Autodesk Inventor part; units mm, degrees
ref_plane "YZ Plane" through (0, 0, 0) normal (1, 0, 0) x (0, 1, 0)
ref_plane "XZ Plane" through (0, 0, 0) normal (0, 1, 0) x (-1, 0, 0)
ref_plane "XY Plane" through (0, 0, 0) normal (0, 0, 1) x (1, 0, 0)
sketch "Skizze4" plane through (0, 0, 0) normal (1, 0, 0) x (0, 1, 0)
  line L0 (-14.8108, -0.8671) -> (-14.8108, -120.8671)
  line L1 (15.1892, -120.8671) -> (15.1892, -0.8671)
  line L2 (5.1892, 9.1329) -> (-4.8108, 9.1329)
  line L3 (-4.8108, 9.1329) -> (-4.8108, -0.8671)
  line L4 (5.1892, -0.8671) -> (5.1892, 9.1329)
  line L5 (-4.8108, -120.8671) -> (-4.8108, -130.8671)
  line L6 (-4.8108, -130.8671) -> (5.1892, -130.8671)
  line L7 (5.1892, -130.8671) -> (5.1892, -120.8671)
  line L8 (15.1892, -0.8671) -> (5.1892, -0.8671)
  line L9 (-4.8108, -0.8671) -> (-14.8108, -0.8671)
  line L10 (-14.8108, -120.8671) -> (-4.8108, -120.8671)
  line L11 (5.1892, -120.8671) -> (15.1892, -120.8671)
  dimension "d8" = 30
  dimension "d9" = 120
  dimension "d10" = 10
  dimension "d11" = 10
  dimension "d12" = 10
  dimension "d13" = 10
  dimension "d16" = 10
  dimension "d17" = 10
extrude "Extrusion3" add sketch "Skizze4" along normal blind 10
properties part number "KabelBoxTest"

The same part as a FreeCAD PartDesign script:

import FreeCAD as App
import Part
import Sketcher
from FreeCAD import Vector
Q = App.Units.Quantity

doc = App.newDocument("Part")
body = doc.addObject("PartDesign::Body", "Body")

# Sketch on YZ plane
sketch1 = body.newObject("Sketcher::SketchObject", "Sketch")
sketch1.AttachmentSupport = (doc.getObject("YZ_Plane"), [""])
sketch1.MapMode = "FlatFace"
sketch1.addGeometry([
    Part.LineSegment(Vector(-5, -1, 0), Vector(-15, -1, 0)),  # 0
    Part.LineSegment(Vector(-15, -1, 0), Vector(-15, -121, 0)),  # 1
    Part.LineSegment(Vector(-15, -121, 0), Vector(-5, -121, 0)),  # 2
    Part.LineSegment(Vector(-5, -121, 0), Vector(-5, -131, 0)),  # 3
    Part.LineSegment(Vector(-5, -131, 0), Vector(5, -131, 0)),  # 4
    Part.LineSegment(Vector(5, -131, 0), Vector(5, -121, 0)),  # 5
    Part.LineSegment(Vector(5, -121, 0), Vector(15, -121, 0)),  # 6
    Part.LineSegment(Vector(15, -121, 0), Vector(15, -1, 0)),  # 7
    Part.LineSegment(Vector(15, -1, 0), Vector(5, -1, 0)),  # 8
    Part.LineSegment(Vector(5, -1, 0), Vector(5, 9, 0)),  # 9
    Part.LineSegment(Vector(5, 9, 0), Vector(-5, 9, 0)),  # 10
    Part.LineSegment(Vector(-5, 9, 0), Vector(-5, -1, 0)),  # 11
], False)
sketch1.addConstraint([
    Sketcher.Constraint("Coincident", 0, 2, 1, 1),
    Sketcher.Constraint("Coincident", 1, 2, 2, 1),
    Sketcher.Constraint("Coincident", 2, 2, 3, 1),
    Sketcher.Constraint("Coincident", 3, 2, 4, 1),
    Sketcher.Constraint("Coincident", 4, 2, 5, 1),
    Sketcher.Constraint("Coincident", 5, 2, 6, 1),
    Sketcher.Constraint("Coincident", 6, 2, 7, 1),
    Sketcher.Constraint("Coincident", 7, 2, 8, 1),
    Sketcher.Constraint("Coincident", 8, 2, 9, 1),
    Sketcher.Constraint("Coincident", 9, 2, 10, 1),
    Sketcher.Constraint("Coincident", 10, 2, 11, 1),
    Sketcher.Constraint("Coincident", 11, 2, 0, 1),
    Sketcher.Constraint("Horizontal", 0),
    Sketcher.Constraint("Vertical", 1),
    Sketcher.Constraint("Horizontal", 2),
    Sketcher.Constraint("Vertical", 3),
    Sketcher.Constraint("Horizontal", 4),
    Sketcher.Constraint("Vertical", 5),
    Sketcher.Constraint("Horizontal", 6),
    Sketcher.Constraint("Vertical", 7),
    Sketcher.Constraint("Horizontal", 8),
    Sketcher.Constraint("Vertical", 9),
    Sketcher.Constraint("Horizontal", 10),
    Sketcher.Constraint("Vertical", 11),
    Sketcher.Constraint("Horizontal", 2, 2, 5, 2),
    Sketcher.Constraint("Horizontal", 0, 2, 7, 2),
    Sketcher.Constraint("Vertical", 5, 2, 8, 2),
    Sketcher.Constraint("Vertical", 3, 2, 10, 2),
    Sketcher.Constraint("Equal", 2, 4),
    Sketcher.Constraint("Equal", 4, 6),
    Sketcher.Constraint("Equal", 10, 3),
    Sketcher.Constraint("Equal", 5, 9),
    Sketcher.Constraint("DistanceX", 0, 2, 0, 1, Q("10 mm")),
    Sketcher.Constraint("DistanceY", 1, 2, 1, 1, Q("120 mm")),
    Sketcher.Constraint("DistanceY", 0, 2, -1, 1, Q("0.867 mm")),
    Sketcher.Constraint("DistanceX", 0, 2, -1, 1, Q("14.8108 mm")),
])
pad1 = body.newObject("PartDesign::Pad", "Pad")
pad1.Profile = sketch1
pad1.Length = 10

doc.recompute()
